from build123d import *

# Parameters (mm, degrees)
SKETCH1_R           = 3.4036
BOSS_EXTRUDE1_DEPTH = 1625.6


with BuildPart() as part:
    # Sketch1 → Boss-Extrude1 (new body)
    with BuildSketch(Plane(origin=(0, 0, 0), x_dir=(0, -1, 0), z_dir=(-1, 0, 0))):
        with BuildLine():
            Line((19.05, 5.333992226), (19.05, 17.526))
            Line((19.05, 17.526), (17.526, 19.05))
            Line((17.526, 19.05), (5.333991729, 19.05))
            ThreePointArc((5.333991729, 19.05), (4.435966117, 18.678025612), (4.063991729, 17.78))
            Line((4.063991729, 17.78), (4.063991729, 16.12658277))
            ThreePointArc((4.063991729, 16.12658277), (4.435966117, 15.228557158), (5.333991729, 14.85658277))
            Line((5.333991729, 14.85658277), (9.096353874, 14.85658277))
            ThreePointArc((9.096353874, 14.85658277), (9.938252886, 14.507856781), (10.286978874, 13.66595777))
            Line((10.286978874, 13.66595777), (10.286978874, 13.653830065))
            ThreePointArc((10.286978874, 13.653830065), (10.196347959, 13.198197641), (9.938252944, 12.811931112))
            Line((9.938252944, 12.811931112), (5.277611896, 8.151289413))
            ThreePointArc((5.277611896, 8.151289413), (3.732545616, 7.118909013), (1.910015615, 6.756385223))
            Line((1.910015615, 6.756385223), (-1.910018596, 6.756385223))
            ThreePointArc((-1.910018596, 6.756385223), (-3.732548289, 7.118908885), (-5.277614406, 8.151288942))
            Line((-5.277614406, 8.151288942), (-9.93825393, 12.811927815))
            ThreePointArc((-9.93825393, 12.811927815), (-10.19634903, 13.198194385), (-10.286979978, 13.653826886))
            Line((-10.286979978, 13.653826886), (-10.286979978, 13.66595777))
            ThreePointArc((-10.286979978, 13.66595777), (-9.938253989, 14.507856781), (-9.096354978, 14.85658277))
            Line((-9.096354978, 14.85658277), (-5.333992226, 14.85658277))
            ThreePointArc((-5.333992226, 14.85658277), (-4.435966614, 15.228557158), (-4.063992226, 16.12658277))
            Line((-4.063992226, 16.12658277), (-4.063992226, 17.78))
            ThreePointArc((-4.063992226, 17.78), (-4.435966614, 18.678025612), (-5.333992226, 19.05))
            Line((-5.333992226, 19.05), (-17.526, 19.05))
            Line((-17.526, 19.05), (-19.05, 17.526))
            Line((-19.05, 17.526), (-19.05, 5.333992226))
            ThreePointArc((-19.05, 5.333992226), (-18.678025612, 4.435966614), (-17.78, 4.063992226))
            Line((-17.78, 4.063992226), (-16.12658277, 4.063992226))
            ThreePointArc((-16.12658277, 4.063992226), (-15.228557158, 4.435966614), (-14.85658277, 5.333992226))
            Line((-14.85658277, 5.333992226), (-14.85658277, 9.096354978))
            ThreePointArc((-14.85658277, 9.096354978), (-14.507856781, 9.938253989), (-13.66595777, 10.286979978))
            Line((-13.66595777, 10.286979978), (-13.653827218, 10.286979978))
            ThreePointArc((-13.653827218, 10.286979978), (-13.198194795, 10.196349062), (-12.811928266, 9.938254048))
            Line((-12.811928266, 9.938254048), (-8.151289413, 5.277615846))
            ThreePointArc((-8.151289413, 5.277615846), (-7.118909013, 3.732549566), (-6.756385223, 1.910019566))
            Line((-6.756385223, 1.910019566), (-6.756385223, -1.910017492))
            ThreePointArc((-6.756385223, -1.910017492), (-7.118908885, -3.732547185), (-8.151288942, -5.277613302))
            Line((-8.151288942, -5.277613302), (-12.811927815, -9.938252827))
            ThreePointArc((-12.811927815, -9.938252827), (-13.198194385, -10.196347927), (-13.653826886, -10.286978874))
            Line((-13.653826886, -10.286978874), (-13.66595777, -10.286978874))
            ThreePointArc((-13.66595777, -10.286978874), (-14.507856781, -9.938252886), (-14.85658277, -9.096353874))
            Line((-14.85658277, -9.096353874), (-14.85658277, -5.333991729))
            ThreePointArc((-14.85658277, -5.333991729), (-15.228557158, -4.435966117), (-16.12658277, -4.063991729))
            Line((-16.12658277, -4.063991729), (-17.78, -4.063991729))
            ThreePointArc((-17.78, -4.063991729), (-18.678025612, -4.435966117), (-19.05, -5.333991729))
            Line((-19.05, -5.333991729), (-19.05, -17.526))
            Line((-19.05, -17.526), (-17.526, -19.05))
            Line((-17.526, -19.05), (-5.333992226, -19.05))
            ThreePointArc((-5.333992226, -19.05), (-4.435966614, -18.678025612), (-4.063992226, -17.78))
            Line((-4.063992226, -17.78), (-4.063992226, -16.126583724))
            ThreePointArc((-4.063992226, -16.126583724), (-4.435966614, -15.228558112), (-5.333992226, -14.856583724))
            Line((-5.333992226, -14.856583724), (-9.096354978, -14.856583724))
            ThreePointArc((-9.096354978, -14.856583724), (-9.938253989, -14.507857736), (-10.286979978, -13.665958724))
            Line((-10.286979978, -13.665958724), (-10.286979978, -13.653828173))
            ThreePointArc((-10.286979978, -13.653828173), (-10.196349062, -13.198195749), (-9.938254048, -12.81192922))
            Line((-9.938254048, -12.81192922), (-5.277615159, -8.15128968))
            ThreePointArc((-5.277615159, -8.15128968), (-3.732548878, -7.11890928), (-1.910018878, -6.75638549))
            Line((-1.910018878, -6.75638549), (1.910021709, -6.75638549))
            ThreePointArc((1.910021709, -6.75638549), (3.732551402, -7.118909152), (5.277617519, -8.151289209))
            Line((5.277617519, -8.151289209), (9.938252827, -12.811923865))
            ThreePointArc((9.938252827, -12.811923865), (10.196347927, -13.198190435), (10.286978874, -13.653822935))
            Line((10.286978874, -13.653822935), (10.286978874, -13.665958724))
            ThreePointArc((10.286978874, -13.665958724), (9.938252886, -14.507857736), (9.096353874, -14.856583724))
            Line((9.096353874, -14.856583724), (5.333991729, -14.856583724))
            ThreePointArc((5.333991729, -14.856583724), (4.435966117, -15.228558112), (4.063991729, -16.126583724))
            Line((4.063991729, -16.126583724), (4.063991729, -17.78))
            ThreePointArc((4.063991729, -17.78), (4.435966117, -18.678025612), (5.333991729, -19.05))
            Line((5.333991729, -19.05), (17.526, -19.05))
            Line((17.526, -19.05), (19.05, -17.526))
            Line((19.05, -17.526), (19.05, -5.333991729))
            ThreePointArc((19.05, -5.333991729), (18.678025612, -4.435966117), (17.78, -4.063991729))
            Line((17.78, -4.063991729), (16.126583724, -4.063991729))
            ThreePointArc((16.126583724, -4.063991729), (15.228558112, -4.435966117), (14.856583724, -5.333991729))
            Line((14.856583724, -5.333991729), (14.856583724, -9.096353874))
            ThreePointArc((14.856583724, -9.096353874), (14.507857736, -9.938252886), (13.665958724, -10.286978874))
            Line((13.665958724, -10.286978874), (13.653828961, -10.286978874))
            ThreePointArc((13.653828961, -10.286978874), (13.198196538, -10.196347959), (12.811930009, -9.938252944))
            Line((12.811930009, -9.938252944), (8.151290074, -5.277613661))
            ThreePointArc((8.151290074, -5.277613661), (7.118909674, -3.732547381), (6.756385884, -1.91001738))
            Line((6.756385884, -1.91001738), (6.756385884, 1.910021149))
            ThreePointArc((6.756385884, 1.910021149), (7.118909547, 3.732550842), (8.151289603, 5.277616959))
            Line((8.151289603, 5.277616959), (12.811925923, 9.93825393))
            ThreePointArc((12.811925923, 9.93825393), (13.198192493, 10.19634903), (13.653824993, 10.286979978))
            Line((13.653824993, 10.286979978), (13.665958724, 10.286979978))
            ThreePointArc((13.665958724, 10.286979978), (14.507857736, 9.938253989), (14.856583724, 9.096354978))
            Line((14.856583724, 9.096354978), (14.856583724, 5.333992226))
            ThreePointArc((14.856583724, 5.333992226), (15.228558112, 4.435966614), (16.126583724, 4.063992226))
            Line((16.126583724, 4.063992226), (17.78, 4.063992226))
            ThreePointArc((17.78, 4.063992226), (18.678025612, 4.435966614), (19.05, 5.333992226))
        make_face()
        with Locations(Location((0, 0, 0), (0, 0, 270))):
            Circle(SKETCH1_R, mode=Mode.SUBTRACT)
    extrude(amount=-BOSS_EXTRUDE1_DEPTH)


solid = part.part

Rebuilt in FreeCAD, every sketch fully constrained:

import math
import FreeCAD as App
import Part
import Sketcher
from FreeCAD import Vector
Q = App.Units.Quantity

doc = App.newDocument("Part")
body = doc.addObject("PartDesign::Body", "Body")

# Sketch on YZ plane
sketch1 = body.newObject("Sketcher::SketchObject", "Sketch")
sketch1.AttachmentSupport = (doc.getObject("YZ_Plane"), [""])
sketch1.MapMode = "FlatFace"
sketch1.addGeometry(Part.LineSegment(Vector(-19.05, 5.333992, 0), Vector(-19.05, 17.526, 0)), False)
sketch1.addGeometry(Part.LineSegment(Vector(-19.05, 17.526, 0), Vector(-17.526, 19.05, 0)), False)
sketch1.addGeometry(Part.LineSegment(Vector(-17.526, 19.05, 0), Vector(-5.333992, 19.05, 0)), False)
sketch1.addGeometry(Part.ArcOfCircle(Part.Circle(Vector(-5.333992, 17.78, 0), Vector(0, 0, 1), 1.27), math.radians(0), math.radians(90)), False)
sketch1.addGeometry(Part.LineSegment(Vector(-4.063992, 17.78, 0), Vector(-4.063992, 16.126583, 0)), False)
sketch1.addGeometry(Part.ArcOfCircle(Part.Circle(Vector(-5.333992, 16.126583, 0), Vector(0, 0, 1), 1.27), math.radians(-90), math.radians(0)), False)
sketch1.addGeometry(Part.LineSegment(Vector(-5.333992, 14.856583, 0), Vector(-9.096354, 14.856583, 0)), False)
sketch1.addGeometry(Part.ArcOfCircle(Part.Circle(Vector(-9.096354, 13.665958, 0), Vector(0, 0, 1), 1.190625), math.radians(90), math.radians(180)), False)
sketch1.addGeometry(Part.LineSegment(Vector(-10.286979, 13.665958, 0), Vector(-10.286979, 13.65383, 0)), False)
sketch1.addGeometry(Part.ArcOfCircle(Part.Circle(Vector(-9.096354, 13.65383, 0), Vector(0, 0, 1), 1.190625), math.radians(180), math.radians(224.999996)), False)
sketch1.addGeometry(Part.LineSegment(Vector(-9.938253, 12.811931, 0), Vector(-5.277612, 8.151289, 0)), False)
sketch1.addGeometry(Part.ArcOfCircle(Part.Circle(Vector(-1.910016, 11.518885, 0), Vector(0, 0, 1), 4.7625), math.radians(-135.000004), math.radians(-90)), False)
sketch1.addGeometry(Part.LineSegment(Vector(-1.910016, 6.756385, 0), Vector(1.910019, 6.756385, 0)), False)
sketch1.addGeometry(Part.ArcOfCircle(Part.Circle(Vector(1.910019, 11.518885, 0), Vector(0, 0, 1), 4.7625), math.radians(-90), math.radians(-45.000004)), False)
sketch1.addGeometry(Part.LineSegment(Vector(5.277614, 8.151289, 0), Vector(9.938254, 12.811928, 0)), False)
sketch1.addGeometry(Part.ArcOfCircle(Part.Circle(Vector(9.096355, 13.653827, 0), Vector(0, 0, 1), 1.190625), math.radians(-45.000004), math.radians(0)), False)
sketch1.addGeometry(Part.LineSegment(Vector(10.28698, 13.653827, 0), Vector(10.28698, 13.665958, 0)), False)
sketch1.addGeometry(Part.ArcOfCircle(Part.Circle(Vector(9.096355, 13.665958, 0), Vector(0, 0, 1), 1.190625), math.radians(0), math.radians(90)), False)
sketch1.addGeometry(Part.LineSegment(Vector(9.096355, 14.856583, 0), Vector(5.333992, 14.856583, 0)), False)
sketch1.addGeometry(Part.ArcOfCircle(Part.Circle(Vector(5.333992, 16.126583, 0), Vector(0, 0, 1), 1.27), math.radians(180), math.radians(270)), False)
sketch1.addGeometry(Part.LineSegment(Vector(4.063992, 16.126583, 0), Vector(4.063992, 17.78, 0)), False)
sketch1.addGeometry(Part.ArcOfCircle(Part.Circle(Vector(5.333992, 17.78, 0), Vector(0, 0, 1), 1.27), math.radians(90), math.radians(180)), False)
sketch1.addGeometry(Part.LineSegment(Vector(5.333992, 19.05, 0), Vector(17.526, 19.05, 0)), False)
sketch1.addGeometry(Part.LineSegment(Vector(17.526, 19.05, 0), Vector(19.05, 17.526, 0)), False)
sketch1.addGeometry(Part.LineSegment(Vector(19.05, 17.526, 0), Vector(19.05, 5.333992, 0)), False)
sketch1.addGeometry(Part.ArcOfCircle(Part.Circle(Vector(17.78, 5.333992, 0), Vector(0, 0, 1), 1.27), math.radians(-90), math.radians(0)), False)
sketch1.addGeometry(Part.LineSegment(Vector(17.78, 4.063992, 0), Vector(16.126583, 4.063992, 0)), False)
sketch1.addGeometry(Part.ArcOfCircle(Part.Circle(Vector(16.126583, 5.333992, 0), Vector(0, 0, 1), 1.27), math.radians(180), math.radians(270)), False)
sketch1.addGeometry(Part.LineSegment(Vector(14.856583, 5.333992, 0), Vector(14.856583, 9.096355, 0)), False)
sketch1.addGeometry(Part.ArcOfCircle(Part.Circle(Vector(13.665958, 9.096355, 0), Vector(0, 0, 1), 1.190625), math.radians(0), math.radians(90)), False)
sketch1.addGeometry(Part.LineSegment(Vector(13.665958, 10.28698, 0), Vector(13.653827, 10.28698, 0)), False)
sketch1.addGeometry(Part.ArcOfCircle(Part.Circle(Vector(13.653827, 9.096355, 0), Vector(0, 0, 1), 1.190625), math.radians(90), math.radians(134.999996)), False)
sketch1.addGeometry(Part.LineSegment(Vector(12.811928, 9.938254, 0), Vector(8.151289, 5.277616, 0)), False)
sketch1.addGeometry(Part.ArcOfCircle(Part.Circle(Vector(11.518885, 1.91002, 0), Vector(0, 0, 1), 4.7625), math.radians(134.999996), math.radians(180)), False)
sketch1.addGeometry(Part.LineSegment(Vector(6.756385, 1.91002, 0), Vector(6.756385, -1.910017, 0)), False)
sketch1.addGeometry(Part.ArcOfCircle(Part.Circle(Vector(11.518885, -1.910017, 0), Vector(0, 0, 1), 4.7625), math.radians(180), math.radians(224.999996)), False)
sketch1.addGeometry(Part.LineSegment(Vector(8.151289, -5.277613, 0), Vector(12.811928, -9.938253, 0)), False)
sketch1.addGeometry(Part.ArcOfCircle(Part.Circle(Vector(13.653827, -9.096354, 0), Vector(0, 0, 1), 1.190625), math.radians(-135.000004), math.radians(-90)), False)
sketch1.addGeometry(Part.LineSegment(Vector(13.653827, -10.286979, 0), Vector(13.665958, -10.286979, 0)), False)
sketch1.addGeometry(Part.ArcOfCircle(Part.Circle(Vector(13.665958, -9.096354, 0), Vector(0, 0, 1), 1.190625), math.radians(-90), math.radians(0)), False)
sketch1.addGeometry(Part.LineSegment(Vector(14.856583, -9.096354, 0), Vector(14.856583, -5.333992, 0)), False)
sketch1.addGeometry(Part.ArcOfCircle(Part.Circle(Vector(16.126583, -5.333992, 0), Vector(0, 0, 1), 1.27), math.radians(90), math.radians(180)), False)
sketch1.addGeometry(Part.LineSegment(Vector(16.126583, -4.063992, 0), Vector(17.78, -4.063992, 0)), False)
sketch1.addGeometry(Part.ArcOfCircle(Part.Circle(Vector(17.78, -5.333992, 0), Vector(0, 0, 1), 1.27), math.radians(0), math.radians(90)), False)
sketch1.addGeometry(Part.LineSegment(Vector(19.05, -5.333992, 0), Vector(19.05, -17.526, 0)), False)
sketch1.addGeometry(Part.LineSegment(Vector(19.05, -17.526, 0), Vector(17.526, -19.05, 0)), False)
sketch1.addGeometry(Part.LineSegment(Vector(17.526, -19.05, 0), Vector(5.333992, -19.05, 0)), False)
sketch1.addGeometry(Part.ArcOfCircle(Part.Circle(Vector(5.333992, -17.78, 0), Vector(0, 0, 1), 1.27), math.radians(180), math.radians(270)), False)
sketch1.addGeometry(Part.LineSegment(Vector(4.063992, -17.78, 0), Vector(4.063992, -16.126584, 0)), False)
sketch1.addGeometry(Part.ArcOfCircle(Part.Circle(Vector(5.333992, -16.126584, 0), Vector(0, 0, 1), 1.27), math.radians(90), math.radians(180)), False)
sketch1.addGeometry(Part.LineSegment(Vector(5.333992, -14.856584, 0), Vector(9.096355, -14.856584, 0)), False)
sketch1.addGeometry(Part.ArcOfCircle(Part.Circle(Vector(9.096355, -13.665959, 0), Vector(0, 0, 1), 1.190625), math.radians(-90), math.radians(0)), False)
sketch1.addGeometry(Part.LineSegment(Vector(10.28698, -13.665959, 0), Vector(10.28698, -13.653828, 0)), False)
sketch1.addGeometry(Part.ArcOfCircle(Part.Circle(Vector(9.096355, -13.653828, 0), Vector(0, 0, 1), 1.190625), math.radians(0), math.radians(44.999996)), False)
sketch1.addGeometry(Part.LineSegment(Vector(9.938254, -12.811929, 0), Vector(5.277615, -8.15129, 0)), False)
sketch1.addGeometry(Part.ArcOfCircle(Part.Circle(Vector(1.910019, -11.518885, 0), Vector(0, 0, 1), 4.7625), math.radians(44.999996), math.radians(90)), False)
sketch1.addGeometry(Part.LineSegment(Vector(1.910019, -6.756385, 0), Vector(-1.910022, -6.756385, 0)), False)
sketch1.addGeometry(Part.ArcOfCircle(Part.Circle(Vector(-1.910022, -11.518885, 0), Vector(0, 0, 1), 4.7625), math.radians(90), math.radians(134.999996)), False)
sketch1.addGeometry(Part.LineSegment(Vector(-5.277618, -8.151289, 0), Vector(-9.938253, -12.811924, 0)), False)
sketch1.addGeometry(Part.ArcOfCircle(Part.Circle(Vector(-9.096354, -13.653823, 0), Vector(0, 0, 1), 1.190625), math.radians(134.999996), math.radians(180)), False)
sketch1.addGeometry(Part.LineSegment(Vector(-10.286979, -13.653823, 0), Vector(-10.286979, -13.665959, 0)), False)
sketch1.addGeometry(Part.ArcOfCircle(Part.Circle(Vector(-9.096354, -13.665959, 0), Vector(0, 0, 1), 1.190625), math.radians(180), math.radians(270)), False)
sketch1.addGeometry(Part.LineSegment(Vector(-9.096354, -14.856584, 0), Vector(-5.333992, -14.856584, 0)), False)
sketch1.addGeometry(Part.ArcOfCircle(Part.Circle(Vector(-5.333992, -16.126584, 0), Vector(0, 0, 1), 1.27), math.radians(0), math.radians(90)), False)
sketch1.addGeometry(Part.LineSegment(Vector(-4.063992, -16.126584, 0), Vector(-4.063992, -17.78, 0)), False)
sketch1.addGeometry(Part.ArcOfCircle(Part.Circle(Vector(-5.333992, -17.78, 0), Vector(0, 0, 1), 1.27), math.radians(-90), math.radians(0)), False)
sketch1.addGeometry(Part.LineSegment(Vector(-5.333992, -19.05, 0), Vector(-17.526, -19.05, 0)), False)
sketch1.addGeometry(Part.LineSegment(Vector(-17.526, -19.05, 0), Vector(-19.05, -17.526, 0)), False)
sketch1.addGeometry(Part.LineSegment(Vector(-19.05, -17.526, 0), Vector(-19.05, -5.333992, 0)), False)
sketch1.addGeometry(Part.ArcOfCircle(Part.Circle(Vector(-17.78, -5.333992, 0), Vector(0, 0, 1), 1.27), math.radians(90), math.radians(180)), False)
sketch1.addGeometry(Part.LineSegment(Vector(-17.78, -4.063992, 0), Vector(-16.126584, -4.063992, 0)), False)
sketch1.addGeometry(Part.ArcOfCircle(Part.Circle(Vector(-16.126584, -5.333992, 0), Vector(0, 0, 1), 1.27), math.radians(0), math.radians(90)), False)
sketch1.addGeometry(Part.LineSegment(Vector(-14.856584, -5.333992, 0), Vector(-14.856584, -9.096354, 0)), False)
sketch1.addGeometry(Part.ArcOfCircle(Part.Circle(Vector(-13.665959, -9.096354, 0), Vector(0, 0, 1), 1.190625), math.radians(180), math.radians(270)), False)
sketch1.addGeometry(Part.LineSegment(Vector(-13.665959, -10.286979, 0), Vector(-13.653829, -10.286979, 0)), False)
sketch1.addGeometry(Part.ArcOfCircle(Part.Circle(Vector(-13.653829, -9.096354, 0), Vector(0, 0, 1), 1.190625), math.radians(-90), math.radians(-45.000004)), False)
sketch1.addGeometry(Part.LineSegment(Vector(-12.81193, -9.938253, 0), Vector(-8.15129, -5.277614, 0)), False)
sketch1.addGeometry(Part.ArcOfCircle(Part.Circle(Vector(-11.518886, -1.910017, 0), Vector(0, 0, 1), 4.7625), math.radians(-45.000004), math.radians(0)), False)
sketch1.addGeometry(Part.LineSegment(Vector(-6.756386, -1.910017, 0), Vector(-6.756386, 1.910021, 0)), False)
sketch1.addGeometry(Part.ArcOfCircle(Part.Circle(Vector(-11.518886, 1.910021, 0), Vector(0, 0, 1), 4.7625), math.radians(0), math.radians(44.999996)), False)
sketch1.addGeometry(Part.LineSegment(Vector(-8.15129, 5.277617, 0), Vector(-12.811926, 9.938254, 0)), False)
sketch1.addGeometry(Part.ArcOfCircle(Part.Circle(Vector(-13.653825, 9.096355, 0), Vector(0, 0, 1), 1.190625), math.radians(44.999996), math.radians(90)), False)
sketch1.addGeometry(Part.LineSegment(Vector(-13.653825, 10.28698, 0), Vector(-13.665959, 10.28698, 0)), False)
sketch1.addGeometry(Part.ArcOfCircle(Part.Circle(Vector(-13.665959, 9.096355, 0), Vector(0, 0, 1), 1.190625), math.radians(90), math.radians(180)), False)
sketch1.addGeometry(Part.LineSegment(Vector(-14.856584, 9.096355, 0), Vector(-14.856584, 5.333992, 0)), False)
sketch1.addGeometry(Part.ArcOfCircle(Part.Circle(Vector(-16.126584, 5.333992, 0), Vector(0, 0, 1), 1.27), math.radians(-90), math.radians(0)), False)
sketch1.addGeometry(Part.LineSegment(Vector(-16.126584, 4.063992, 0), Vector(-17.78, 4.063992, 0)), False)
sketch1.addGeometry(Part.ArcOfCircle(Part.Circle(Vector(-17.78, 5.333992, 0), Vector(0, 0, 1), 1.27), math.radians(180), math.radians(270)), False)
sketch1.addGeometry(Part.Circle(Vector(0, 0, 0), Vector(0, 0, 1), 3.4036), False)
sketch1.addConstraint(Sketcher.Constraint("Coincident", 0, 2, 1, 1))
sketch1.addConstraint(Sketcher.Constraint("Coincident", 1, 2, 2, 1))
sketch1.addConstraint(Sketcher.Constraint("Tangent", 2, 2, 3, 2))
sketch1.addConstraint(Sketcher.Constraint("Tangent", 3, 1, 4, 1))
sketch1.addConstraint(Sketcher.Constraint("Tangent", 4, 2, 5, 2))
sketch1.addConstraint(Sketcher.Constraint("Tangent", 5, 1, 6, 1))
sketch1.addConstraint(Sketcher.Constraint("Tangent", 6, 2, 7, 1))
sketch1.addConstraint(Sketcher.Constraint("Tangent", 7, 2, 8, 1))
sketch1.addConstraint(Sketcher.Constraint("Tangent", 8, 2, 9, 1))
sketch1.addConstraint(Sketcher.Constraint("Tangent", 9, 2, 10, 1))
sketch1.addConstraint(Sketcher.Constraint("Tangent", 10, 2, 11, 1))
sketch1.addConstraint(Sketcher.Constraint("Tangent", 11, 2, 12, 1))
sketch1.addConstraint(Sketcher.Constraint("Tangent", 12, 2, 13, 1))
sketch1.addConstraint(Sketcher.Constraint("Tangent", 13, 2, 14, 1))
sketch1.addConstraint(Sketcher.Constraint("Tangent", 14, 2, 15, 1))
sketch1.addConstraint(Sketcher.Constraint("Tangent", 15, 2, 16, 1))
sketch1.addConstraint(Sketcher.Constraint("Tangent", 16, 2, 17, 1))
sketch1.addConstraint(Sketcher.Constraint("Tangent", 17, 2, 18, 1))
sketch1.addConstraint(Sketcher.Constraint("Tangent", 18, 2, 19, 2))
sketch1.addConstraint(Sketcher.Constraint("Tangent", 19, 1, 20, 1))
sketch1.addConstraint(Sketcher.Constraint("Tangent", 20, 2, 21, 2))
sketch1.addConstraint(Sketcher.Constraint("Tangent", 21, 1, 22, 1))
sketch1.addConstraint(Sketcher.Constraint("Coincident", 22, 2, 23, 1))
sketch1.addConstraint(Sketcher.Constraint("Coincident", 23, 2, 24, 1))
sketch1.addConstraint(Sketcher.Constraint("Tangent", 24, 2, 25, 2))
sketch1.addConstraint(Sketcher.Constraint("Tangent", 25, 1, 26, 1))
sketch1.addConstraint(Sketcher.Constraint("Tangent", 26, 2, 27, 2))
sketch1.addConstraint(Sketcher.Constraint("Tangent", 27, 1, 28, 1))
sketch1.addConstraint(Sketcher.Constraint("Tangent", 28, 2, 29, 1))
sketch1.addConstraint(Sketcher.Constraint("Tangent", 29, 2, 30, 1))
sketch1.addConstraint(Sketcher.Constraint("Tangent", 30, 2, 31, 1))
sketch1.addConstraint(Sketcher.Constraint("Tangent", 31, 2, 32, 1))
sketch1.addConstraint(Sketcher.Constraint("Tangent", 32, 2, 33, 1))
sketch1.addConstraint(Sketcher.Constraint("Tangent", 33, 2, 34, 1))
sketch1.addConstraint(Sketcher.Constraint("Tangent", 34, 2, 35, 1))
sketch1.addConstraint(Sketcher.Constraint("Tangent", 35, 2, 36, 1))
sketch1.addConstraint(Sketcher.Constraint("Tangent", 36, 2, 37, 1))
sketch1.addConstraint(Sketcher.Constraint("Tangent", 37, 2, 38, 1))
sketch1.addConstraint(Sketcher.Constraint("Tangent", 38, 2, 39, 1))
sketch1.addConstraint(Sketcher.Constraint("Tangent", 39, 2, 40, 1))
sketch1.addConstraint(Sketcher.Constraint("Tangent", 40, 2, 41, 2))
sketch1.addConstraint(Sketcher.Constraint("Tangent", 41, 1, 42, 1))
sketch1.addConstraint(Sketcher.Constraint("Tangent", 42, 2, 43, 2))
sketch1.addConstraint(Sketcher.Constraint("Tangent", 43, 1, 44, 1))
sketch1.addConstraint(Sketcher.Constraint("Coincident", 44, 2, 45, 1))
sketch1.addConstraint(Sketcher.Constraint("Coincident", 45, 2, 46, 1))
sketch1.addConstraint(Sketcher.Constraint("Tangent", 46, 2, 47, 2))
sketch1.addConstraint(Sketcher.Constraint("Tangent", 47, 1, 48, 1))
sketch1.addConstraint(Sketcher.Constraint("Tangent", 48, 2, 49, 2))
sketch1.addConstraint(Sketcher.Constraint("Tangent", 49, 1, 50, 1))
sketch1.addConstraint(Sketcher.Constraint("Tangent", 50, 2, 51, 1))
sketch1.addConstraint(Sketcher.Constraint("Tangent", 51, 2, 52, 1))
sketch1.addConstraint(Sketcher.Constraint("Tangent", 52, 2, 53, 1))
sketch1.addConstraint(Sketcher.Constraint("Tangent", 53, 2, 54, 1))
sketch1.addConstraint(Sketcher.Constraint("Tangent", 54, 2, 55, 1))
sketch1.addConstraint(Sketcher.Constraint("Tangent", 55, 2, 56, 1))
sketch1.addConstraint(Sketcher.Constraint("Tangent", 56, 2, 57, 1))
sketch1.addConstraint(Sketcher.Constraint("Tangent", 57, 2, 58, 1))
sketch1.addConstraint(Sketcher.Constraint("Tangent", 58, 2, 59, 1))
sketch1.addConstraint(Sketcher.Constraint("Tangent", 59, 2, 60, 1))
sketch1.addConstraint(Sketcher.Constraint("Tangent", 60, 2, 61, 1))
sketch1.addConstraint(Sketcher.Constraint("Tangent", 61, 2, 62, 1))
sketch1.addConstraint(Sketcher.Constraint("Tangent", 62, 2, 63, 2))
sketch1.addConstraint(Sketcher.Constraint("Tangent", 63, 1, 64, 1))
sketch1.addConstraint(Sketcher.Constraint("Tangent", 64, 2, 65, 2))
sketch1.addConstraint(Sketcher.Constraint("Tangent", 65, 1, 66, 1))
sketch1.addConstraint(Sketcher.Constraint("Coincident", 66, 2, 67, 1))
sketch1.addConstraint(Sketcher.Constraint("Coincident", 67, 2, 68, 1))
sketch1.addConstraint(Sketcher.Constraint("Tangent", 68, 2, 69, 2))
sketch1.addConstraint(Sketcher.Constraint("Tangent", 69, 1, 70, 1))
sketch1.addConstraint(Sketcher.Constraint("Tangent", 70, 2, 71, 2))
sketch1.addConstraint(Sketcher.Constraint("Tangent", 71, 1, 72, 1))
sketch1.addConstraint(Sketcher.Constraint("Tangent", 72, 2, 73, 1))
sketch1.addConstraint(Sketcher.Constraint("Tangent", 73, 2, 74, 1))
sketch1.addConstraint(Sketcher.Constraint("Tangent", 74, 2, 75, 1))
sketch1.addConstraint(Sketcher.Constraint("Tangent", 75, 2, 76, 1))
sketch1.addConstraint(Sketcher.Constraint("Tangent", 76, 2, 77, 1))
sketch1.addConstraint(Sketcher.Constraint("Tangent", 77, 2, 78, 1))
sketch1.addConstraint(Sketcher.Constraint("Tangent", 78, 2, 79, 1))
sketch1.addConstraint(Sketcher.Constraint("Tangent", 79, 2, 80, 1))
sketch1.addConstraint(Sketcher.Constraint("Tangent", 80, 2, 81, 1))
sketch1.addConstraint(Sketcher.Constraint("Tangent", 81, 2, 82, 1))
sketch1.addConstraint(Sketcher.Constraint("Tangent", 82, 2, 83, 1))
sketch1.addConstraint(Sketcher.Constraint("Tangent", 83, 2, 84, 1))
sketch1.addConstraint(Sketcher.Constraint("Tangent", 84, 2, 85, 2))
sketch1.addConstraint(Sketcher.Constraint("Tangent", 85, 1, 86, 1))
sketch1.addConstraint(Sketcher.Constraint("Tangent", 86, 2, 87, 2))
sketch1.addConstraint(Sketcher.Constraint("Tangent", 87, 1, 0, 1))
sketch1.addConstraint(Sketcher.Constraint("Vertical", 0))
sketch1.addConstraint(Sketcher.Constraint("Horizontal", 2))
sketch1.addConstraint(Sketcher.Constraint("Vertical", 4))
sketch1.addConstraint(Sketcher.Constraint("Horizontal", 6))
sketch1.addConstraint(Sketcher.Constraint("Vertical", 8))
sketch1.addConstraint(Sketcher.Constraint("Horizontal", 12))
sketch1.addConstraint(Sketcher.Constraint("Vertical", 16))
sketch1.addConstraint(Sketcher.Constraint("Horizontal", 18))
sketch1.addConstraint(Sketcher.Constraint("Vertical", 20))
sketch1.addConstraint(Sketcher.Constraint("Horizontal", 22))
sketch1.addConstraint(Sketcher.Constraint("Vertical", 24))
sketch1.addConstraint(Sketcher.Constraint("Horizontal", 26))
sketch1.addConstraint(Sketcher.Constraint("Vertical", 28))
sketch1.addConstraint(Sketcher.Constraint("Horizontal", 30))
sketch1.addConstraint(Sketcher.Constraint("Vertical", 34))
sketch1.addConstraint(Sketcher.Constraint("Horizontal", 38))
sketch1.addConstraint(Sketcher.Constraint("Vertical", 40))
sketch1.addConstraint(Sketcher.Constraint("Horizontal", 42))
sketch1.addConstraint(Sketcher.Constraint("Vertical", 44))
sketch1.addConstraint(Sketcher.Constraint("Horizontal", 46))
sketch1.addConstraint(Sketcher.Constraint("Vertical", 48))
sketch1.addConstraint(Sketcher.Constraint("Horizontal", 50))
sketch1.addConstraint(Sketcher.Constraint("Vertical", 52))
sketch1.addConstraint(Sketcher.Constraint("Horizontal", 56))
sketch1.addConstraint(Sketcher.Constraint("Vertical", 60))
sketch1.addConstraint(Sketcher.Constraint("Horizontal", 62))
sketch1.addConstraint(Sketcher.Constraint("Vertical", 64))
sketch1.addConstraint(Sketcher.Constraint("Horizontal", 66))
sketch1.addConstraint(Sketcher.Constraint("Vertical", 68))
sketch1.addConstraint(Sketcher.Constraint("Horizontal", 70))
sketch1.addConstraint(Sketcher.Constraint("Vertical", 72))
sketch1.addConstraint(Sketcher.Constraint("Horizontal", 74))
sketch1.addConstraint(Sketcher.Constraint("Vertical", 78))
sketch1.addConstraint(Sketcher.Constraint("Horizontal", 82))
sketch1.addConstraint(Sketcher.Constraint("Vertical", 84))
sketch1.addConstraint(Sketcher.Constraint("Horizontal", 86))
sketch1.addConstraint(Sketcher.Constraint("Coincident", 88, 3, -1, 1))
sketch1.addConstraint(Sketcher.Constraint("Equal", 3, 5))
sketch1.addConstraint(Sketcher.Constraint("Equal", 7, 9))
sketch1.addConstraint(Sketcher.Constraint("Equal", 11, 13))
sketch1.addConstraint(Sketcher.Constraint("Equal", 9, 15))
sketch1.addConstraint(Sketcher.Constraint("Equal", 15, 17))
sketch1.addConstraint(Sketcher.Constraint("Equal", 5, 19))
sketch1.addConstraint(Sketcher.Constraint("Equal", 19, 21))
sketch1.addConstraint(Sketcher.Constraint("Equal", 21, 25))
sketch1.addConstraint(Sketcher.Constraint("Equal", 25, 27))
sketch1.addConstraint(Sketcher.Constraint("Equal", 17, 29))
sketch1.addConstraint(Sketcher.Constraint("Equal", 29, 31))
sketch1.addConstraint(Sketcher.Constraint("Equal", 13, 33))
sketch1.addConstraint(Sketcher.Constraint("Equal", 33, 35))
sketch1.addConstraint(Sketcher.Constraint("Equal", 31, 37))
sketch1.addConstraint(Sketcher.Constraint("Equal", 37, 39))
sketch1.addConstraint(Sketcher.Constraint("Equal", 27, 41))
sketch1.addConstraint(Sketcher.Constraint("Equal", 41, 43))
sketch1.addConstraint(Sketcher.Constraint("Equal", 43, 47))
sketch1.addConstraint(Sketcher.Constraint("Equal", 47, 49))
sketch1.addConstraint(Sketcher.Constraint("Equal", 39, 51))
sketch1.addConstraint(Sketcher.Constraint("Equal", 51, 53))
sketch1.addConstraint(Sketcher.Constraint("Equal", 35, 55))
sketch1.addConstraint(Sketcher.Constraint("Equal", 55, 57))
sketch1.addConstraint(Sketcher.Constraint("Equal", 53, 59))
sketch1.addConstraint(Sketcher.Constraint("Equal", 59, 61))
sketch1.addConstraint(Sketcher.Constraint("Equal", 49, 63))
sketch1.addConstraint(Sketcher.Constraint("Equal", 63, 65))
sketch1.addConstraint(Sketcher.Constraint("Equal", 65, 69))
sketch1.addConstraint(Sketcher.Constraint("Equal", 69, 71))
sketch1.addConstraint(Sketcher.Constraint("Equal", 61, 73))
sketch1.addConstraint(Sketcher.Constraint("Equal", 73, 75))
sketch1.addConstraint(Sketcher.Constraint("Equal", 57, 77))
sketch1.addConstraint(Sketcher.Constraint("Equal", 77, 79))
sketch1.addConstraint(Sketcher.Constraint("Equal", 75, 81))
sketch1.addConstraint(Sketcher.Constraint("Equal", 81, 83))
sketch1.addConstraint(Sketcher.Constraint("Equal", 71, 85))
sketch1.addConstraint(Sketcher.Constraint("Equal", 85, 87))
sketch1.addConstraint(Sketcher.Constraint("Symmetric", 3, 3, 47, 3, -1, 1))
sketch1.addConstraint(Sketcher.Constraint("Symmetric", 7, 3, 51, 3, -1, 1))
sketch1.addConstraint(Sketcher.Constraint("Symmetric", 11, 3, 55, 3, -1, 1))
sketch1.addConstraint(Sketcher.Constraint("Symmetric", 15, 3, 59, 3, -1, 1))
sketch1.addConstraint(Sketcher.Constraint("Symmetric", 19, 3, 63, 3, -1, 1))
sketch1.addConstraint(Sketcher.Constraint("Symmetric", 25, 3, 69, 3, -1, 1))
sketch1.addConstraint(Sketcher.Constraint("Symmetric", 29, 3, 73, 3, -1, 1))
sketch1.addConstraint(Sketcher.Constraint("Symmetric", 33, 3, 77, 3, -1, 1))
sketch1.addConstraint(Sketcher.Constraint("Symmetric", 37, 3, 81, 3, -1, 1))
sketch1.addConstraint(Sketcher.Constraint("Symmetric", 41, 3, 85, 3, -1, 1))
sketch1.addConstraint(Sketcher.Constraint("Symmetric", 0, 2, 44, 2, -1, 1))
sketch1.addConstraint(Sketcher.Constraint("Symmetric", 22, 2, 66, 2, -1, 1))
sketch1.addConstraint(Sketcher.Constraint("Symmetric", 9, 3, 15, 3, -2))
sketch1.addConstraint(Sketcher.Constraint("Symmetric", 5, 3, 19, 3, -2))
sketch1.addConstraint(Sketcher.Constraint("Symmetric", 43, 3, 69, 3, -2))
sketch1.addConstraint(Sketcher.Constraint("Symmetric", 39, 3, 73, 3, -2))
sketch1.addConstraint(Sketcher.Constraint("Symmetric", 1, 2, 22, 2, -2))
sketch1.addConstraint(Sketcher.Constraint("Symmetric", 54, 2, 57, 2, -2))
sketch1.addConstraint(Sketcher.Constraint("Symmetric", 36, 2, 75, 2, -2))
sketch1.addConstraint(Sketcher.Constraint("Symmetric", 32, 2, 79, 2, -2))
sketch1.addConstraint(Sketcher.Constraint("Perpendicular", 1, 10))
sketch1.addConstraint(Sketcher.Constraint("Perpendicular", 10, 14))
sketch1.addConstraint(Sketcher.Constraint("Perpendicular", 14, 23))
sketch1.addConstraint(Sketcher.Constraint("Perpendicular", 23, 32))
sketch1.addConstraint(Sketcher.Constraint("Perpendicular", 32, 36))
sketch1.addConstraint(Sketcher.Constraint("Perpendicular", 36, 45))
sketch1.addConstraint(Sketcher.Constraint("Perpendicular", 58, 67))
sketch1.addConstraint(Sketcher.Constraint("Equal", 66, 0))
sketch1.addConstraint(Sketcher.Constraint("Equal", 86, 4))
sketch1.addConstraint(Sketcher.Constraint("Equal", 74, 16))
sketch1.addConstraint(Sketcher.Constraint("Equal", 62, 28))
sketch1.addConstraint(Sketcher.Constraint("Equal", 14, 32))
sketch1.addConstraint(Sketcher.Constraint("Radius", 3, Q("0.05 in")))
sketch1.addConstraint(Sketcher.Constraint("Diameter", 88, Q("0.268 in")))
sketch1.addConstraint(Sketcher.Constraint("Radius", 7, Q("0.046875 in")))
sketch1.addConstraint(Sketcher.Constraint("Radius", 11, Q("0.1875 in")))
sketch1.addConstraint(Sketcher.Constraint("DistanceY", -1, 1, 3, 3, Q("0.7 in")))
sketch1.addConstraint(Sketcher.Constraint("DistanceX", -1, 1, 25, 3, Q("0.7 in")))
sketch1.addConstraint(Sketcher.Constraint("DistanceY", -1, 1, 0, 2, Q("0.69 in")))
sketch1.addConstraint(Sketcher.Constraint("DistanceX", 2, 1, 2, 2, Q("12.192008 mm")))
sketch1.addConstraint(Sketcher.Constraint("DistanceX", 30, 2, 30, 1, Q("0.012131 mm")))
sketch1.addConstraint(Sketcher.Constraint("DistanceX", 56, 2, 56, 1, Q("3.820041 mm")))
sketch1.addConstraint(Sketcher.Constraint("Distance", 14, Q("6.591139 mm")))
sketch1.addConstraint(Sketcher.Constraint("DistanceX", 26, 2, 26, 1, Q("1.653417 mm")))
pad1 = body.newObject("PartDesign::Pad", "Pad")
pad1.Profile = sketch1
pad1.Length = Q("64 in")

doc.recompute()
